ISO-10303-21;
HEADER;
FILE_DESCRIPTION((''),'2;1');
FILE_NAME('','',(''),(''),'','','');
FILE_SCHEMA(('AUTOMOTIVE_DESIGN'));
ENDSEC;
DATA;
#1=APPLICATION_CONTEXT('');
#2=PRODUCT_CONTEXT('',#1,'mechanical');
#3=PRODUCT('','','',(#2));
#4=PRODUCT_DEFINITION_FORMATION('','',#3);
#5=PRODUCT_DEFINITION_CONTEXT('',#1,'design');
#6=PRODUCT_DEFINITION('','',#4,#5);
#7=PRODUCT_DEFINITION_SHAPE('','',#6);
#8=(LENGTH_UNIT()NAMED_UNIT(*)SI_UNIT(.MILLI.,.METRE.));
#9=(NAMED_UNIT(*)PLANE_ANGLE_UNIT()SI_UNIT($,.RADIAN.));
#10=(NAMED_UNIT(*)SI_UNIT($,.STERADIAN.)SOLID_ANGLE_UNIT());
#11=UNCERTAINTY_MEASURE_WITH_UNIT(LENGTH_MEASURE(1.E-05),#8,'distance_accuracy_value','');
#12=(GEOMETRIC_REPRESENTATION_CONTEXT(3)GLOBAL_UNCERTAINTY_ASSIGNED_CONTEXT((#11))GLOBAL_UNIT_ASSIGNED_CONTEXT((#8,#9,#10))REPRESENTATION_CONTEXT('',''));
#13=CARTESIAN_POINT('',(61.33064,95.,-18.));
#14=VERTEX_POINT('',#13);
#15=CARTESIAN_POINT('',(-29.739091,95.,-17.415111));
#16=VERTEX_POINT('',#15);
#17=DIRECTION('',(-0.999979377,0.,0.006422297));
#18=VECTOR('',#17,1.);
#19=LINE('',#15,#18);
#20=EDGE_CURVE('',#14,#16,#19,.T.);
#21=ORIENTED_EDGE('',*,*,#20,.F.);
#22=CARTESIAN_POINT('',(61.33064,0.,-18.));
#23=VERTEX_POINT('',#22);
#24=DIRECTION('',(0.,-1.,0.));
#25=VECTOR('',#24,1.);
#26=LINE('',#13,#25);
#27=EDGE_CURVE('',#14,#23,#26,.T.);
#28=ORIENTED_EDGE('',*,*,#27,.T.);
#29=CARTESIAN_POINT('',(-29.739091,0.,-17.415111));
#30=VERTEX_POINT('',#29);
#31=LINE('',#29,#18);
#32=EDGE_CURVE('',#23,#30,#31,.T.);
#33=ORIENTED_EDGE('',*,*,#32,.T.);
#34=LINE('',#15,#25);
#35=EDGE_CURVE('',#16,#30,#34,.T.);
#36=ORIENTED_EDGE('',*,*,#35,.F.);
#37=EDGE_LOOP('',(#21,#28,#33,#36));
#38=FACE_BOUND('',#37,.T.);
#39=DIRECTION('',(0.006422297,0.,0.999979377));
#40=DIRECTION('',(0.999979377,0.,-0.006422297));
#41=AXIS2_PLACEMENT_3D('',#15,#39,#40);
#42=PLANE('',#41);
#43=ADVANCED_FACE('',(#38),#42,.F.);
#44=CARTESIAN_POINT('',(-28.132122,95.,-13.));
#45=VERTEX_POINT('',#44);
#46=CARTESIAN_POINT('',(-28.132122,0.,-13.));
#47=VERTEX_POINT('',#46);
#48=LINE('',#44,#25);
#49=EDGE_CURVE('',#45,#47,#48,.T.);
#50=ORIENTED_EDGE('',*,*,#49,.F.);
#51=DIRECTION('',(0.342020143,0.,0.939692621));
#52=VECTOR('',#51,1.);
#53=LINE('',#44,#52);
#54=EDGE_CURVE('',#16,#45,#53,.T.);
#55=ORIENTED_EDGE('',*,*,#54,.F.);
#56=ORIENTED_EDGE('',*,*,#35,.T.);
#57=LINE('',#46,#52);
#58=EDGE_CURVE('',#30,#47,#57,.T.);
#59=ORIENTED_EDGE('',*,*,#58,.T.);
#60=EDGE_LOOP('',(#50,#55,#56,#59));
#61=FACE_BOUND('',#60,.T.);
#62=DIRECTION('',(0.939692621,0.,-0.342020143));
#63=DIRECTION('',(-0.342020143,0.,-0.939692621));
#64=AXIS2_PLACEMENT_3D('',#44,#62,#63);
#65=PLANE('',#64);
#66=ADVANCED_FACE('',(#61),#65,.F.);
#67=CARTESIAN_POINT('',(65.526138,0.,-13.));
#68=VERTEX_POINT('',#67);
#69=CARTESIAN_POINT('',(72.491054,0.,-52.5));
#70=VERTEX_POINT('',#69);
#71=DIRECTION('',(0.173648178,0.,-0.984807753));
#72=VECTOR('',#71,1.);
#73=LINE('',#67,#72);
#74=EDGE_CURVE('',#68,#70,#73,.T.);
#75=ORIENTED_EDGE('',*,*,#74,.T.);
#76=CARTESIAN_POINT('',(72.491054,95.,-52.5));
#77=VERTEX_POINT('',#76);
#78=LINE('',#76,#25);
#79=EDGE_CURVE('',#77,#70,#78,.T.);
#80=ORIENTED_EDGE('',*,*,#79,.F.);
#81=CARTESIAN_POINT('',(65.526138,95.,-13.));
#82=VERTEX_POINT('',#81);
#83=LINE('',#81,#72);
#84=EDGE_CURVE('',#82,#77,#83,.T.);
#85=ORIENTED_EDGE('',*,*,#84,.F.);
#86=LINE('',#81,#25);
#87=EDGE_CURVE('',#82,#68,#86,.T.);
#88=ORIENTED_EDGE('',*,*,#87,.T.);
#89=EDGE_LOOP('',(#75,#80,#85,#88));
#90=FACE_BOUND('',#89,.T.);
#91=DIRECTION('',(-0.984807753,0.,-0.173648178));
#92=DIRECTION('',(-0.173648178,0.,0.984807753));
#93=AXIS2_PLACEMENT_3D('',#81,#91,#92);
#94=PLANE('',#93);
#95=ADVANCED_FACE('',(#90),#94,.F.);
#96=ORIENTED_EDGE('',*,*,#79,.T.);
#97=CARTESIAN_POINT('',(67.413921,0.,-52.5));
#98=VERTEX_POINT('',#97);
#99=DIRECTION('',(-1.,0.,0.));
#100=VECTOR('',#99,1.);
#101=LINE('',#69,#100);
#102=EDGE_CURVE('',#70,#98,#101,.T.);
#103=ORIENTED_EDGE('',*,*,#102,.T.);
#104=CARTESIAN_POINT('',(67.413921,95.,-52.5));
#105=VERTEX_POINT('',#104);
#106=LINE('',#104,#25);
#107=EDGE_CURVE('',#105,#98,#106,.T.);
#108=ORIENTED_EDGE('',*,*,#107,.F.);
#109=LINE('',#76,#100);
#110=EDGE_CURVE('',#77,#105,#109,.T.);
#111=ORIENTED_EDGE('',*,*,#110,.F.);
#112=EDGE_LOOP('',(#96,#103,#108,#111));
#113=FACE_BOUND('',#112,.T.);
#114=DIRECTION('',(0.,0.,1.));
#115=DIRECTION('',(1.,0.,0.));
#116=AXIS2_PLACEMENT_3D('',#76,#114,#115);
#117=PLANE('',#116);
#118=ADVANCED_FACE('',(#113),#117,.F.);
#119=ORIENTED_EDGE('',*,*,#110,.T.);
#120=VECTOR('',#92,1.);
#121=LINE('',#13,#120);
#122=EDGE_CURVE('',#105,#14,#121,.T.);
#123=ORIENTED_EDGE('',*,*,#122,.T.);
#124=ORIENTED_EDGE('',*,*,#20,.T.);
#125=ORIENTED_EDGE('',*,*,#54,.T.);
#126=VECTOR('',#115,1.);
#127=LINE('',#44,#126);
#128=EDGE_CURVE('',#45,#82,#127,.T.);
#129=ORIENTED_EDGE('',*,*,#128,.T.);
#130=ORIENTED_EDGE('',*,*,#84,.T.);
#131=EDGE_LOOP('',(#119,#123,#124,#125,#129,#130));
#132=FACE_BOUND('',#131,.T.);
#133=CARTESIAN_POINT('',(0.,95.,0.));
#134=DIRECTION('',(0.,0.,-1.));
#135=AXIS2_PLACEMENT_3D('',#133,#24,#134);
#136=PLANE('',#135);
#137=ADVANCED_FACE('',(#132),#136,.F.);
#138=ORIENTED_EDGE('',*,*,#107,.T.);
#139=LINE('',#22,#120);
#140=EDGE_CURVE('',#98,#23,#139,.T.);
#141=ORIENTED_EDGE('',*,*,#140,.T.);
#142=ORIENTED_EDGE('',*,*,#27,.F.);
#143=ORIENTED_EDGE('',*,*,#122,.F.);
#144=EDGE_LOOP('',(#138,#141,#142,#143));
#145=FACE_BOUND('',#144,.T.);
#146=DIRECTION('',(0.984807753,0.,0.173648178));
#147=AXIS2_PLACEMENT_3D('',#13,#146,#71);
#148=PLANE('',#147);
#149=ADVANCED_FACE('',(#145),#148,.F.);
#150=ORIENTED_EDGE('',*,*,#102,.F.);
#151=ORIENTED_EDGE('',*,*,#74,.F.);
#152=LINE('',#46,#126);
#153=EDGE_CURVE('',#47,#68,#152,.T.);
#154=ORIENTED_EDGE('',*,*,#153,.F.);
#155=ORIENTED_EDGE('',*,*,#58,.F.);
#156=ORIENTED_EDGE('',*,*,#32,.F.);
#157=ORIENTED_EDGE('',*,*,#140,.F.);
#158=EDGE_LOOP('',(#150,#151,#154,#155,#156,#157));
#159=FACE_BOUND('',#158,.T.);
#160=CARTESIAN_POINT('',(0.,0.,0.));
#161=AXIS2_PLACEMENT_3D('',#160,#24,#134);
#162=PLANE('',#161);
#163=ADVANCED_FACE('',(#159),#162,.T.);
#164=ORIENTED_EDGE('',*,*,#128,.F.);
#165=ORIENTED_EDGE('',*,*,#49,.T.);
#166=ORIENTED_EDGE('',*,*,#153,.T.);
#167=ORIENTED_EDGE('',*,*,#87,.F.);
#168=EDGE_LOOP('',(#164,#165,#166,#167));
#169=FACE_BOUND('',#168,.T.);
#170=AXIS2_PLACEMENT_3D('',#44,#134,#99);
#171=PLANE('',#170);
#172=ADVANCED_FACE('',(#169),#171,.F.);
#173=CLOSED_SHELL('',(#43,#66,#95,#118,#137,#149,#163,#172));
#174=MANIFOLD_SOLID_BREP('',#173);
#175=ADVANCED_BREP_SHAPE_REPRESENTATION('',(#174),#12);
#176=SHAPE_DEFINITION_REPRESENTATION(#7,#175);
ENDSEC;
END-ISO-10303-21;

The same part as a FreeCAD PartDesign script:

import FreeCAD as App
import Part
import Sketcher
Q = App.Units.Quantity


def add_polygon(sketch, points):
    """Adds a closed chain of lines whose ends are joined by coincident constraints."""
    first, n = sketch.GeometryCount, len(points)
    for a, b in zip(points, points[1:] + points[:1]):
        sketch.addGeometry(Part.LineSegment(App.Vector(*a, 0), App.Vector(*b, 0)), False)
    for i in range(n):
        sketch.addConstraint(Sketcher.Constraint("Coincident", first + i, 2, first + (i + 1) % n, 1))

doc = App.newDocument("Part")
body = doc.addObject("PartDesign::Body", "Body")

# Sketch on XZ plane
sketch1 = body.newObject("Sketcher::SketchObject", "Sketch")
sketch1.AttachmentSupport = (doc.getObject("XZ_Plane"), [""])
sketch1.MapMode = "FlatFace"
add_polygon(sketch1, [(-28.1, -13), (65.5, -13), (72.5, -52.5), (67.4, -52.5), (61.3, -18), (-29.7, -17.4)])  # lines 0-5
sketch1.addConstraint(Sketcher.Constraint("Horizontal", 0))
sketch1.addConstraint(Sketcher.Constraint("Horizontal", 2))
sketch1.addConstraint(Sketcher.Constraint("Parallel", 1, 3))
sketch1.addConstraint(Sketcher.Constraint("Angle", 1, Q("-80 deg")))
sketch1.addConstraint(Sketcher.Constraint("Angle", 5, Q("70 deg")))
sketch1.addConstraint(Sketcher.Constraint("DistanceY", 0, 2, -1, 1, Q("13 mm")))
sketch1.addConstraint(Sketcher.Constraint("DistanceY", 3, 2, -1, 1, Q("18 mm")))
sketch1.addConstraint(Sketcher.Constraint("DistanceY", 1, 2, -1, 1, Q("52.5 mm")))
sketch1.addConstraint(Sketcher.Constraint("DistanceX", 0, 1, 0, 2, Q("93.65826 mm")))
sketch1.addConstraint(Sketcher.Constraint("DistanceX", 3, 2, 0, 2, Q("4.195498 mm")))
sketch1.addConstraint(Sketcher.Constraint("Distance", 4, Q("91.071609 mm")))
sketch1.addConstraint(Sketcher.Constraint("DistanceX", -1, 1, 2, 2, Q("67.413921 mm")))
pad1 = body.newObject("PartDesign::Pad", "Pad")
pad1.Profile = sketch1
pad1.Length = 95
pad1.Reversed = True

doc.recompute()
